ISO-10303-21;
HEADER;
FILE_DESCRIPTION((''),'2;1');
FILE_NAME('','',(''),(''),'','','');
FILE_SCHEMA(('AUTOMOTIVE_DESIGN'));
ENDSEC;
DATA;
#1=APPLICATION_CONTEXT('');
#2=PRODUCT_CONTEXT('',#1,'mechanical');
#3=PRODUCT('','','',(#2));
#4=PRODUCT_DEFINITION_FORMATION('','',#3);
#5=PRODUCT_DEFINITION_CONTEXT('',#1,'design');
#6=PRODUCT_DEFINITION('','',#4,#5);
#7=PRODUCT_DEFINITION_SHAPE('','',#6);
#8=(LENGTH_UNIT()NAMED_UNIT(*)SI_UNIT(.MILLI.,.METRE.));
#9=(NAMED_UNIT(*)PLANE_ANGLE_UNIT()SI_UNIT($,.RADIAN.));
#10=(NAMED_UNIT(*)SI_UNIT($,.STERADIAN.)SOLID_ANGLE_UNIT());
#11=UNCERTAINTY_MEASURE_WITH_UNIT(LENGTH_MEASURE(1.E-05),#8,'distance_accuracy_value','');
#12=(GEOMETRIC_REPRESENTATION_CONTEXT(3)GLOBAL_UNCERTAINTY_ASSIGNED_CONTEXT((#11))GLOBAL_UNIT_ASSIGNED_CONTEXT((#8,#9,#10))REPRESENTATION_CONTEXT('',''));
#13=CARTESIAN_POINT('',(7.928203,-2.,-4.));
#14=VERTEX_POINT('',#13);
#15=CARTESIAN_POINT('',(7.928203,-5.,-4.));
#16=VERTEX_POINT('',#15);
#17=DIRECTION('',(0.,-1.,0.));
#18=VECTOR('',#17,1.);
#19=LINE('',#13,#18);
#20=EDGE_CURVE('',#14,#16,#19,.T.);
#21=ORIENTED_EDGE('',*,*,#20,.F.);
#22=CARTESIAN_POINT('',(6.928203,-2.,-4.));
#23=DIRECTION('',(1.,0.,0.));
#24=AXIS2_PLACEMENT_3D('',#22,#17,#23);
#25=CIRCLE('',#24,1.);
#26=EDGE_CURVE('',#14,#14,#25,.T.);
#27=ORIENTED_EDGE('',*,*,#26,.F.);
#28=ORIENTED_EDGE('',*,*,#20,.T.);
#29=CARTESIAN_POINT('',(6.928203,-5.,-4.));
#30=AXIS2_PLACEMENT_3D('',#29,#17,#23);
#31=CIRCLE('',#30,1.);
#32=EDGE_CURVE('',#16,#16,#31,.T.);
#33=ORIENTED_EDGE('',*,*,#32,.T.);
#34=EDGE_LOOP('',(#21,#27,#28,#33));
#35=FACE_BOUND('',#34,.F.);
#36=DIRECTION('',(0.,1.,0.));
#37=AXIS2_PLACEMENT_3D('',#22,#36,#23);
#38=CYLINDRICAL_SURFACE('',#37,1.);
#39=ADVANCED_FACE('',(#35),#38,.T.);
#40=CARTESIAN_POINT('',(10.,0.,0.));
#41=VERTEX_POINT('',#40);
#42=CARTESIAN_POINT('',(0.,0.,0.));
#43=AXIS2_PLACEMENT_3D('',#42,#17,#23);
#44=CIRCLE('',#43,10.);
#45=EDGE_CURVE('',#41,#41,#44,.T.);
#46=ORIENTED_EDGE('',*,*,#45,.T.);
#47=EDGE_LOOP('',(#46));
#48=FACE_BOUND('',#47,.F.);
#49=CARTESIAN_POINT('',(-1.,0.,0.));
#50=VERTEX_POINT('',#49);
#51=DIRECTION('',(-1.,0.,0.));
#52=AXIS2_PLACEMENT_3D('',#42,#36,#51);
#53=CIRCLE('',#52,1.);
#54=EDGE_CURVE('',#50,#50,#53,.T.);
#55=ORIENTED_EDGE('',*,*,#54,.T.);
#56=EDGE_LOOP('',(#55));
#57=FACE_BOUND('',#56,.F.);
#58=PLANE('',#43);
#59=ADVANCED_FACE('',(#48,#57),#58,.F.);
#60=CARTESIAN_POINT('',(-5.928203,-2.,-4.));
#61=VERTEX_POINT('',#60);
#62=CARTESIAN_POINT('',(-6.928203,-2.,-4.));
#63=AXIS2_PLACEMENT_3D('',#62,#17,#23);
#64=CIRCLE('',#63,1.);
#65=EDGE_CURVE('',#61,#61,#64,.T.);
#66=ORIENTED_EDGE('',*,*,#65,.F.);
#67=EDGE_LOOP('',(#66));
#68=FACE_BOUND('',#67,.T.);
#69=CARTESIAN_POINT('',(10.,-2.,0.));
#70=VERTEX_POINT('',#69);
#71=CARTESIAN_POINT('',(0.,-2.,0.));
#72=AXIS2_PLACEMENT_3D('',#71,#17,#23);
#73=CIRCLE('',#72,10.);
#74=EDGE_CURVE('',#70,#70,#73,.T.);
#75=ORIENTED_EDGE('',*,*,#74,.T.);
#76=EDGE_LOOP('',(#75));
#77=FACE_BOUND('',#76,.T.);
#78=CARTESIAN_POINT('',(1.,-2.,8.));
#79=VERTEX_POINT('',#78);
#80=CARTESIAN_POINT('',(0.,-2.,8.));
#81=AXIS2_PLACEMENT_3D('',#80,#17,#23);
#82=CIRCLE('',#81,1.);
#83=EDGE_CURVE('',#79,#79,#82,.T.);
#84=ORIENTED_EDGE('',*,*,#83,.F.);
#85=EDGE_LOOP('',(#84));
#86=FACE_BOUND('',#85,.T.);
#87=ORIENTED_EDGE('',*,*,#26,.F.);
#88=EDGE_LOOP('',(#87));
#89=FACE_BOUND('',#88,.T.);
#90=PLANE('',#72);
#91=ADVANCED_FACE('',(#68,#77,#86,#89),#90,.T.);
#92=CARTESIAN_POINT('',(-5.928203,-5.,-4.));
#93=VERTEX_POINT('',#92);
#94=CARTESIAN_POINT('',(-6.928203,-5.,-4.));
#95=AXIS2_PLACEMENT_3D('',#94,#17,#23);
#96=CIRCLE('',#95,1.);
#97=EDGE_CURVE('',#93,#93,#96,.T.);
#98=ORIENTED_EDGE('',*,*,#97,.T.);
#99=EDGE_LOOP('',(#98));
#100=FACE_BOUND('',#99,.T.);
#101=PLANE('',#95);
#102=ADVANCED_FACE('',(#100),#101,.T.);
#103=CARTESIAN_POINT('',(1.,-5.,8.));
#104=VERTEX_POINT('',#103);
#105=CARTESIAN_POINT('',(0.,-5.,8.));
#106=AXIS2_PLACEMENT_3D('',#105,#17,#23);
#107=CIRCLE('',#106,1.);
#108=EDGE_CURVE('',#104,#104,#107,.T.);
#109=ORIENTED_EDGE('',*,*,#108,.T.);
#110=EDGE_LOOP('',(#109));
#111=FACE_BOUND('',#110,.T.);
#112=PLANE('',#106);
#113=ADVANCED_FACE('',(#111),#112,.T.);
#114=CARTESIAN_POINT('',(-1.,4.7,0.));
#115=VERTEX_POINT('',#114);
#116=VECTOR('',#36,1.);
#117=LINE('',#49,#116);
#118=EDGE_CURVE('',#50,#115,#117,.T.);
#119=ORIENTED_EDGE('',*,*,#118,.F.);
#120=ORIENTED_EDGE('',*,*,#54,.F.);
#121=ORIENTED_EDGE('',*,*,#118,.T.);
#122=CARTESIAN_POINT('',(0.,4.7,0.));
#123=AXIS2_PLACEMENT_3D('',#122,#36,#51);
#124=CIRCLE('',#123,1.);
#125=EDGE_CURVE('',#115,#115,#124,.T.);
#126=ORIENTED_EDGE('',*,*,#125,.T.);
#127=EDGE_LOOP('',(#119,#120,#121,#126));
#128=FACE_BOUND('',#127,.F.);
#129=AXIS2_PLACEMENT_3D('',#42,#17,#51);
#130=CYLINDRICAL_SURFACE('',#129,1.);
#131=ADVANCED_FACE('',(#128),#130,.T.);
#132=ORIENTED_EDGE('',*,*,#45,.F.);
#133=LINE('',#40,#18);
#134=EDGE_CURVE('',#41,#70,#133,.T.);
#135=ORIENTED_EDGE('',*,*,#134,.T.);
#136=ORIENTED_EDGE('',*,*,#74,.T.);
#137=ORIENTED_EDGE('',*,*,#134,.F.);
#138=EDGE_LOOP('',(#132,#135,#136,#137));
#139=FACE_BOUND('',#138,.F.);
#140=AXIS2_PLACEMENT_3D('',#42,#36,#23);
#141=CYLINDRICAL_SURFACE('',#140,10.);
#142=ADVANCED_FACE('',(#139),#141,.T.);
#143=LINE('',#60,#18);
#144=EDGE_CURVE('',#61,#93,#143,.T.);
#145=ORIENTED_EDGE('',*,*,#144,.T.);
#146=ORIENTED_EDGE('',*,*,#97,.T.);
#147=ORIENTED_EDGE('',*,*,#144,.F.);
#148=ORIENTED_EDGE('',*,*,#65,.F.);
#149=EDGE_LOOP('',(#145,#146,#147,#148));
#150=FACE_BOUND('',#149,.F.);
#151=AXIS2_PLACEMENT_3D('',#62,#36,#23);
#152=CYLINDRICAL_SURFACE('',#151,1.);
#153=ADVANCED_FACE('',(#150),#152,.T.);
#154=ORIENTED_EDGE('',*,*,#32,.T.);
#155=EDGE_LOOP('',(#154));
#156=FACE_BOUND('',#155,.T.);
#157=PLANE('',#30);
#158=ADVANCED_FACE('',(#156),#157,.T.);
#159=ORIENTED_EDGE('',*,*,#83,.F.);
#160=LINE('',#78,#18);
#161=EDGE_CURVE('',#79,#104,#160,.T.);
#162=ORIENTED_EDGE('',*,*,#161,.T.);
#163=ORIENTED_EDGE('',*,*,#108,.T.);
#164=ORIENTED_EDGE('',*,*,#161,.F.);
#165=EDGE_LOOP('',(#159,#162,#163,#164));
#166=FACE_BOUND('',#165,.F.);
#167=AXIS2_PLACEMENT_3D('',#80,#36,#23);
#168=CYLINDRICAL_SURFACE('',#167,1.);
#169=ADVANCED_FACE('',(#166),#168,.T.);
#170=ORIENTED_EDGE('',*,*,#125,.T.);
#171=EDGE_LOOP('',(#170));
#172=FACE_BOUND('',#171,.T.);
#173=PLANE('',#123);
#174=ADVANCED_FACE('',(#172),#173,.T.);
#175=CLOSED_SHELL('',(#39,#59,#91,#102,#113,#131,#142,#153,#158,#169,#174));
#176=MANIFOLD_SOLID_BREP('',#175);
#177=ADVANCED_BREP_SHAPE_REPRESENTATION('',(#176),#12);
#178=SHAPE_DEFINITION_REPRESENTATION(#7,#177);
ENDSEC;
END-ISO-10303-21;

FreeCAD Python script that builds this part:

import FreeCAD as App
import Part
import Sketcher
from FreeCAD import Vector
Q = App.Units.Quantity

doc = App.newDocument("Part")
body = doc.addObject("PartDesign::Body", "Body")

sketch1 = doc.addObject("Sketcher::SketchObject", "Sketch")
body.addObject(sketch1)
sketch1.AttachmentSupport = (doc.XZ_Plane, [""])
sketch1.MapMode = "FlatFace"
sketch1.addGeometry(Part.Circle(Vector(0, 0, 0), Vector(0, 0, 1), 10), False)
sketch1.addConstraint([
    Sketcher.Constraint("Coincident", 0, 3, -1, 1),
    Sketcher.Constraint("Diameter", 0, Q("20 mm")),
])
pad1 = doc.addObject("PartDesign::Pad", "Pad")
body.addObject(pad1)
pad1.Profile = sketch1
pad1.Length = 2

sketch2 = doc.addObject("Sketcher::SketchObject", "Sketch001")
body.addObject(sketch2)
sketch2.AttachmentSupport = (doc.XZ_Plane, [""])
sketch2.MapMode = "FlatFace"
sketch2.AttachmentOffset = App.Placement(Vector(0, 0, 2), App.Rotation())
sketch2.addGeometry([
    Part.Circle(Vector(0, 8, 0), Vector(0, 0, 1), 1),
    Part.Circle(Vector(-6.9, -4, 0), Vector(0, 0, 1), 1),
    Part.Circle(Vector(6.9, -4, 0), Vector(0, 0, 1), 1),
], False)
sketch2.addConstraint([
    Sketcher.Constraint("Equal", 0, 1),
    Sketcher.Constraint("Equal", 1, 2),
    Sketcher.Constraint("Symmetric", 1, 3, 2, 3, -2),
    Sketcher.Constraint("PointOnObject", 0, 3, -2),
    Sketcher.Constraint("Diameter", 0, Q("2 mm")),
    Sketcher.Constraint("DistanceY", -1, 1, 0, 3, Q("8 mm")),
    Sketcher.Constraint("DistanceY", 1, 3, -1, 1, Q("4 mm")),
    Sketcher.Constraint("DistanceX", 1, 3, -1, 1, Q("6.928203 mm")),
])
pad2 = doc.addObject("PartDesign::Pad", "Pad001")
body.addObject(pad2)
pad2.Profile = sketch2
pad2.Length = 3

sketch3 = doc.addObject("Sketcher::SketchObject", "Sketch002")
body.addObject(sketch3)
sketch3.AttachmentSupport = (doc.XZ_Plane, [""])
sketch3.MapMode = "FlatFace"
sketch3.addGeometry(Part.Circle(Vector(0, 0, 0), Vector(0, 0, 1), 1), False)
sketch3.addConstraint([
    Sketcher.Constraint("Coincident", 0, 3, -1, 1),
    Sketcher.Constraint("Diameter", 0, Q("2 mm")),
])
pad3 = doc.addObject("PartDesign::Pad", "Pad002")
body.addObject(pad3)
pad3.Profile = sketch3
pad3.Length = 4.7
pad3.Reversed = True

doc.recompute()
